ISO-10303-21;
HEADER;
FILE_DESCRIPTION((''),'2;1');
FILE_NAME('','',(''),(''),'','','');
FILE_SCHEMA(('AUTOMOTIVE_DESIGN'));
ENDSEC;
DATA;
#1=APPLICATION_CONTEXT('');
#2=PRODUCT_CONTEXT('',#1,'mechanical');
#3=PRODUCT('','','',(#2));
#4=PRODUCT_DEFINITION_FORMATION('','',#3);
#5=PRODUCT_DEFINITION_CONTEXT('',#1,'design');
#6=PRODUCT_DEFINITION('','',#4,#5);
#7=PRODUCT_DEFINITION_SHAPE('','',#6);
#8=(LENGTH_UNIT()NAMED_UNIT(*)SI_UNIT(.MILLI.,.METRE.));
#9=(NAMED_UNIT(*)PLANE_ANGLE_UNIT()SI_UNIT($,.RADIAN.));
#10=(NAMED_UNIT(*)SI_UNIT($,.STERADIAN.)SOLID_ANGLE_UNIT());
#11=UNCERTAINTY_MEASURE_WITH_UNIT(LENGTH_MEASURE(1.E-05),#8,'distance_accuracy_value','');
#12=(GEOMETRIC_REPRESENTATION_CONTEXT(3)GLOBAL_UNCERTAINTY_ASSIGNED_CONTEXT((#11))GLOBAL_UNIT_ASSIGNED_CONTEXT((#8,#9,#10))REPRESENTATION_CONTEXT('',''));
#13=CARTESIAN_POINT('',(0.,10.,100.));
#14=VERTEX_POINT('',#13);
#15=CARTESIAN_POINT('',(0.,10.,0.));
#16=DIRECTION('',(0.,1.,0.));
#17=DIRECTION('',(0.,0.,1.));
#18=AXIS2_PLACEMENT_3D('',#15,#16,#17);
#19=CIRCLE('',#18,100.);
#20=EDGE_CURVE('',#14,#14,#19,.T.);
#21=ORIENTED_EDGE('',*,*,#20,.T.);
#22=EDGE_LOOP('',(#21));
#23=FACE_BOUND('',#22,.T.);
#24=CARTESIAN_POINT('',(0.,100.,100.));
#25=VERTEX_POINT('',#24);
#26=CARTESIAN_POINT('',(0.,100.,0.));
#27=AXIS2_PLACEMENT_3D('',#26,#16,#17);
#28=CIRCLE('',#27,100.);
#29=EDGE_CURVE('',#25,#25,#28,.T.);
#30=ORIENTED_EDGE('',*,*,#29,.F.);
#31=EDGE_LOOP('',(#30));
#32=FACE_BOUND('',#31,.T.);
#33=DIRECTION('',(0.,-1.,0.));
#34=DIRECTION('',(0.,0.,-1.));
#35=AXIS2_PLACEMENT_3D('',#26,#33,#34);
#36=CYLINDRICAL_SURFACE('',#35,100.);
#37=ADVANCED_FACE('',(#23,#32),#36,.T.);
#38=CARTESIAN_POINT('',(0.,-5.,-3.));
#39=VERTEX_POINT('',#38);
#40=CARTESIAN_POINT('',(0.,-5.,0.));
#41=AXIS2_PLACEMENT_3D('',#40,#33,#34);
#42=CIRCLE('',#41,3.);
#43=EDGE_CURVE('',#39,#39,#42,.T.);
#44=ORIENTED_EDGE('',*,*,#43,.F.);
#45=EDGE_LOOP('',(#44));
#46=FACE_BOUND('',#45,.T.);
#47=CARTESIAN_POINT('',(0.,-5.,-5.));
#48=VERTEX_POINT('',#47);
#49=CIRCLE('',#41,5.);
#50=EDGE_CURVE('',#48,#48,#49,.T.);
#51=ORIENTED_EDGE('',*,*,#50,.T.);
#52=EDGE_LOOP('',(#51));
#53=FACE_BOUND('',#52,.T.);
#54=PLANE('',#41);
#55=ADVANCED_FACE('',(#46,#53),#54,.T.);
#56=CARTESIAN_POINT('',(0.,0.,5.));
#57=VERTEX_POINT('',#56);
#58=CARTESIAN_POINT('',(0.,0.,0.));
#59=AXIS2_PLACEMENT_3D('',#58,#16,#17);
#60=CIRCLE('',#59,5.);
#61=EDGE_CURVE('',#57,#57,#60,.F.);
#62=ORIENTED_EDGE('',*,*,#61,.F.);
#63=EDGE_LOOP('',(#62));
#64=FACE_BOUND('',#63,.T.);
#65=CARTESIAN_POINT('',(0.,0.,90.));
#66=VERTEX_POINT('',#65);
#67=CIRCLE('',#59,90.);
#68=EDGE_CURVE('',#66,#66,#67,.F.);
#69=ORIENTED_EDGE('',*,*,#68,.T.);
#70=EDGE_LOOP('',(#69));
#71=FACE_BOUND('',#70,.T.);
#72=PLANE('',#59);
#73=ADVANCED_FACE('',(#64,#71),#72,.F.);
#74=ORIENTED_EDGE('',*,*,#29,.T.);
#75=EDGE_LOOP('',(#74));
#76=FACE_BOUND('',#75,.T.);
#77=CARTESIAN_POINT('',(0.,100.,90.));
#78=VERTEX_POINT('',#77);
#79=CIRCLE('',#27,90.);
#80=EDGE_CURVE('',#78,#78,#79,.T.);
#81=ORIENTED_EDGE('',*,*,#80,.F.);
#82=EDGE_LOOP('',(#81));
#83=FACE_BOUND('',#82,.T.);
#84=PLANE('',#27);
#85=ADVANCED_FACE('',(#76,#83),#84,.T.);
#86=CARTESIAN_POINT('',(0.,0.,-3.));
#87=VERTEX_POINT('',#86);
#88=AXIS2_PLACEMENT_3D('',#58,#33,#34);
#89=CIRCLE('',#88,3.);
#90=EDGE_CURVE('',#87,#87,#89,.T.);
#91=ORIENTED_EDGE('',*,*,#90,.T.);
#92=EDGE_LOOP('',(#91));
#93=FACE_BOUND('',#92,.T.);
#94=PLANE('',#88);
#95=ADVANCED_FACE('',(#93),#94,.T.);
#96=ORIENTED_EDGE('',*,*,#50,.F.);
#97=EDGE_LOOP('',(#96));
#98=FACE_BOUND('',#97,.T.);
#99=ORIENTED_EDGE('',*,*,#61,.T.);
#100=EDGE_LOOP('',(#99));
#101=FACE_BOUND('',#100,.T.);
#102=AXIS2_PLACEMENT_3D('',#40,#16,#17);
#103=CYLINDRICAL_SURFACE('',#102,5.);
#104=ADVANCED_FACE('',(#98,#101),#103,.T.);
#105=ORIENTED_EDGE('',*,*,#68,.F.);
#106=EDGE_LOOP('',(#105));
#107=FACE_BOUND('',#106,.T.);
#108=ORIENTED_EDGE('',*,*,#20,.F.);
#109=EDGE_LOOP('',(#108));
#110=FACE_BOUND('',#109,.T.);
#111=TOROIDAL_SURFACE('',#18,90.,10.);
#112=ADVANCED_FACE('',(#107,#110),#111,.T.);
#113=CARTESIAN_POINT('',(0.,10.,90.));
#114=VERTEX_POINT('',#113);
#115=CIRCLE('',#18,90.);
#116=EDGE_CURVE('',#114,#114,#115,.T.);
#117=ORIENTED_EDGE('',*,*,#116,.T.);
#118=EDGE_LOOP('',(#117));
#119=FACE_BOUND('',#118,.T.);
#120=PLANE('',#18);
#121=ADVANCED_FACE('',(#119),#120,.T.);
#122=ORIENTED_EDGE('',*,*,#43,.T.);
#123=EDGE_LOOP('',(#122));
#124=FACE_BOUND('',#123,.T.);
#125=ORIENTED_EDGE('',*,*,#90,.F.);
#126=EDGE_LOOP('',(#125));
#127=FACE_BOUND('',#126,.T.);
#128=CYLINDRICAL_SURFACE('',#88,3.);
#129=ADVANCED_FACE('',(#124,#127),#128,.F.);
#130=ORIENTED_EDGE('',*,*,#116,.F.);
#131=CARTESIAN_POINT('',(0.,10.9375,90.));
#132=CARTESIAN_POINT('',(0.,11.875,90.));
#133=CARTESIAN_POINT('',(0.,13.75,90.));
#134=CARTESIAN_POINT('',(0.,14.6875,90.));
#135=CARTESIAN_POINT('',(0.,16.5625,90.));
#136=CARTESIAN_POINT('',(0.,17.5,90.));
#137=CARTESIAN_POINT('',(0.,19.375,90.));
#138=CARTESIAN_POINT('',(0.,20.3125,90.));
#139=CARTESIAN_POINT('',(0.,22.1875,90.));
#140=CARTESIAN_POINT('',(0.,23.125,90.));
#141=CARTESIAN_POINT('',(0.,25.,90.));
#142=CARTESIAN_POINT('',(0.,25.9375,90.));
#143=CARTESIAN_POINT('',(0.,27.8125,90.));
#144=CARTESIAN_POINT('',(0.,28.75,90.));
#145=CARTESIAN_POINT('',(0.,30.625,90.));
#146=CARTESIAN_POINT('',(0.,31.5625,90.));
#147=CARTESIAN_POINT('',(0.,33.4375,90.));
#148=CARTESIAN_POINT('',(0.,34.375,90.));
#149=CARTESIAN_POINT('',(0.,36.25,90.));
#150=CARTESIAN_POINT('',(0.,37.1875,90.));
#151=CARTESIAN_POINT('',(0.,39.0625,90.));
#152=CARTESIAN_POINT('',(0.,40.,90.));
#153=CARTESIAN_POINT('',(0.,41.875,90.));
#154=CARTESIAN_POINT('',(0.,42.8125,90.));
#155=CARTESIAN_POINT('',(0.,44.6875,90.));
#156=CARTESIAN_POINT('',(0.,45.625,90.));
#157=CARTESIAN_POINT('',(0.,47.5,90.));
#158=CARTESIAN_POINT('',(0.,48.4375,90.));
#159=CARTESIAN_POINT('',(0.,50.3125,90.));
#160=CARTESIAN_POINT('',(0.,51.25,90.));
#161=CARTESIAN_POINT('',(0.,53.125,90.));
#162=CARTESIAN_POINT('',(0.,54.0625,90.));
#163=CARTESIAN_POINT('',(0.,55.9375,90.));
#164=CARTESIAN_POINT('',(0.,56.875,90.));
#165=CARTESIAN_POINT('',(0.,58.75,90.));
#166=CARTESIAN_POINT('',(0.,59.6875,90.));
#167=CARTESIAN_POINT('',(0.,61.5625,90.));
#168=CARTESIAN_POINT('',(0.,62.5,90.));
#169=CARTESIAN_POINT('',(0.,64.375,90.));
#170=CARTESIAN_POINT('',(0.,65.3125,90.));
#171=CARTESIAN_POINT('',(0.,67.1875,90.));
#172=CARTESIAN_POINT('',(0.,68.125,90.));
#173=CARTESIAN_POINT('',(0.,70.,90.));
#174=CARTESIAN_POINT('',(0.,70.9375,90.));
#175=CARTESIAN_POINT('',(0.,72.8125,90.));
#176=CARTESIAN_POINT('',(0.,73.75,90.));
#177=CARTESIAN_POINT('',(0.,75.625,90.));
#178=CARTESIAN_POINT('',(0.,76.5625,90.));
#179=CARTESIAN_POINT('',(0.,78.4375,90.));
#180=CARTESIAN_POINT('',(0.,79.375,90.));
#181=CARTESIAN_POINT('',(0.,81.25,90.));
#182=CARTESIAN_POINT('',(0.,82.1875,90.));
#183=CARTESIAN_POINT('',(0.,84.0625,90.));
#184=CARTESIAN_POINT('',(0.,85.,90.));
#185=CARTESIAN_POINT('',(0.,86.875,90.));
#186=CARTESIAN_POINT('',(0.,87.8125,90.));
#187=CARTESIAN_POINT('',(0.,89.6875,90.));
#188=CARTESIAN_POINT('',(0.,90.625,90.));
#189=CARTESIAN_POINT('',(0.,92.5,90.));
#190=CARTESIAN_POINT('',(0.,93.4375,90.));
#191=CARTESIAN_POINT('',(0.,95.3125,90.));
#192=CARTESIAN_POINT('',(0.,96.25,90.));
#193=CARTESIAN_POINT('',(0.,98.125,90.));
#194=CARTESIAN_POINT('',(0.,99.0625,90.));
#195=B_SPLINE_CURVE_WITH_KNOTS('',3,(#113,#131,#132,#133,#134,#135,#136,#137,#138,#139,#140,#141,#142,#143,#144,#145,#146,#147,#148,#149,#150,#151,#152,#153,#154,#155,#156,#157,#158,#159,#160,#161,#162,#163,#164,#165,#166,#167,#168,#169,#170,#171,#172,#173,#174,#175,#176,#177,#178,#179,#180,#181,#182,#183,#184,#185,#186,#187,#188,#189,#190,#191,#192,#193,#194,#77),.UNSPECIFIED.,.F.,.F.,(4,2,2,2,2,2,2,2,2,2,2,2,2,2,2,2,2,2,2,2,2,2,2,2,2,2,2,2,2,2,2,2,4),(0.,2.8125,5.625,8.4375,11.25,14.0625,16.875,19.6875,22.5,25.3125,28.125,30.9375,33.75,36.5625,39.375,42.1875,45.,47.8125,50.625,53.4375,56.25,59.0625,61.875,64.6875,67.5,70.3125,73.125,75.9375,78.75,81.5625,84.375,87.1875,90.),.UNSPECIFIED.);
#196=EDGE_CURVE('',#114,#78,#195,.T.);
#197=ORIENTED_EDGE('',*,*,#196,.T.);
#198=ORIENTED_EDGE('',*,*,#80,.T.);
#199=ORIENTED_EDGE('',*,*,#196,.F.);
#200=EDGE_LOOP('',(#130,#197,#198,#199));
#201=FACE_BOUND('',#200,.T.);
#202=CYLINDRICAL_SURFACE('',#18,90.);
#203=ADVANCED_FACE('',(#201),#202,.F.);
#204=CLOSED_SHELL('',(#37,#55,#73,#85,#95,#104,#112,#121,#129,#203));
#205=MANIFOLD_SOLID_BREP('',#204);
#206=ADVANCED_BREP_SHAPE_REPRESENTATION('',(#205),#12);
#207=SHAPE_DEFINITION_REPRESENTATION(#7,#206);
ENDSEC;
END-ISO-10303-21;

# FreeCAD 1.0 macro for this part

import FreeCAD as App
import Part
import Sketcher
from FreeCAD import Vector
Q = App.Units.Quantity


def edges_at(feature, points):
    """Names of the edges that pass closest to the given points."""
    edges = feature.Shape.Edges
    near = lambda p: min(range(len(edges)), key=lambda i: edges[i].distToShape(Part.Vertex(*p))[0])
    return sorted({f"Edge{near(p) + 1}" for p in points})

doc = App.newDocument("Part")
params = doc.addObject("Spreadsheet::Sheet", "Params")
for row, (alias, value) in enumerate([
    ("sketch1_diameter", "200 mm"),
    ("pad1_length", "100 mm"),
    ("sketch2_diameter", "180 mm"),
    ("pocket1_length", "90 mm"),
    ("fillet_radius", "10 mm"),
    ("sketch3_diameter", "10 mm"),
    ("pad2_length", "5 mm"),
    ("sketch4_diameter", "6 mm"),
    ("pocket2_length", "5 mm"),
], start=1):
    params.set(f"A{row}", alias)
    params.set(f"B{row}", "=" + value)
    params.setAlias(f"B{row}", alias)

body = doc.addObject("PartDesign::Body", "Body")

# Sketch on XZ plane
sketch1 = doc.addObject("Sketcher::SketchObject", "Sketch")
body.addObject(sketch1)
sketch1.AttachmentSupport = (doc.XZ_Plane, [""])
sketch1.MapMode = "FlatFace"
sketch1.addGeometry(Part.Circle(Vector(0, 0, 0), Vector(0, 0, 1), 100), False)
sketch1.addConstraint([
    Sketcher.Constraint("Coincident", 0, 3, -1, 1),
    Sketcher.Constraint("Diameter", 0, Q("200 mm")),
])
sketch1.setExpression("Constraints[1]", "Params.sketch1_diameter")
pad1 = doc.addObject("PartDesign::Pad", "Pad")
body.addObject(pad1)
pad1.Profile = sketch1
pad1.setExpression("Length", "Params.pad1_length")
pad1.Reversed = True

# Sketch on XZ plane
sketch2 = doc.addObject("Sketcher::SketchObject", "Sketch001")
body.addObject(sketch2)
sketch2.AttachmentSupport = (doc.XZ_Plane, [""])
sketch2.MapMode = "FlatFace"
sketch2.AttachmentOffset = App.Placement(Vector(0, 0, -100), App.Rotation())
sketch2.addGeometry(Part.Circle(Vector(0, 0, 0), Vector(0, 0, 1), 90), False)
sketch2.addConstraint([
    Sketcher.Constraint("Coincident", 0, 3, -1, 1),
    Sketcher.Constraint("Diameter", 0, Q("180 mm")),
])
sketch2.setExpression("Constraints[1]", "Params.sketch2_diameter")
pocket1 = doc.addObject("PartDesign::Pocket", "Pocket")
body.addObject(pocket1)
pocket1.Profile = sketch2
pocket1.setExpression("Length", "Params.pocket1_length")
pocket1.Reversed = True
doc.recompute()

fillet = doc.addObject("PartDesign::Fillet", "Fillet")
body.addObject(fillet)
fillet.Base = (pocket1, edges_at(pocket1, [(0, 0, -100)]))
fillet.setExpression("Radius", "Params.fillet_radius")

# Sketch on XZ plane
sketch3 = doc.addObject("Sketcher::SketchObject", "Sketch002")
body.addObject(sketch3)
sketch3.AttachmentSupport = (doc.XZ_Plane, [""])
sketch3.MapMode = "FlatFace"
sketch3.addGeometry(Part.Circle(Vector(0, 0, 0), Vector(0, 0, 1), 5), False)
sketch3.addConstraint([
    Sketcher.Constraint("Coincident", 0, 3, -1, 1),
    Sketcher.Constraint("Diameter", 0, Q("10 mm")),
])
sketch3.setExpression("Constraints[1]", "Params.sketch3_diameter")
pad2 = doc.addObject("PartDesign::Pad", "Pad001")
body.addObject(pad2)
pad2.Profile = sketch3
pad2.setExpression("Length", "Params.pad2_length")

# Sketch on XZ plane
sketch4 = doc.addObject("Sketcher::SketchObject", "Sketch003")
body.addObject(sketch4)
sketch4.AttachmentSupport = (doc.XZ_Plane, [""])
sketch4.MapMode = "FlatFace"
sketch4.AttachmentOffset = App.Placement(Vector(0, 0, 5), App.Rotation())
sketch4.addGeometry(Part.Circle(Vector(0, 0, 0), Vector(0, 0, 1), 3), False)
sketch4.addConstraint([
    Sketcher.Constraint("Coincident", 0, 3, -1, 1),
    Sketcher.Constraint("Diameter", 0, Q("6 mm")),
])
sketch4.setExpression("Constraints[1]", "Params.sketch4_diameter")
pocket2 = doc.addObject("PartDesign::Pocket", "Pocket001")
body.addObject(pocket2)
pocket2.Profile = sketch4
pocket2.setExpression("Length", "Params.pocket2_length")

doc.recompute()
